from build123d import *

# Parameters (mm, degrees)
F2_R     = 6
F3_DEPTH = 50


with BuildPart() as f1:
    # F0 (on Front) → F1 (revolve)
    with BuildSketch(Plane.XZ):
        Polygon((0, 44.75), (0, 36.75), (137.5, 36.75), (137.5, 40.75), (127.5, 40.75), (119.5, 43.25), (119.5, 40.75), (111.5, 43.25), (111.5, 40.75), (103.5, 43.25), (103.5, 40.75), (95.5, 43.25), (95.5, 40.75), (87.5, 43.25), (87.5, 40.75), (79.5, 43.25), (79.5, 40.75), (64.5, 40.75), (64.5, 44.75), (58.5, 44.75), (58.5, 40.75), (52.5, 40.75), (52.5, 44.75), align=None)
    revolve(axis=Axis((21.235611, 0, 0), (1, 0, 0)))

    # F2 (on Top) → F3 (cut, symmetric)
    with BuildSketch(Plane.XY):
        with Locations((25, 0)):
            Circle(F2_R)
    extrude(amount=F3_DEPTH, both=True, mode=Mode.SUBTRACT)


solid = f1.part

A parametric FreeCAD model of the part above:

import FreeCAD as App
import Part
import Sketcher
from FreeCAD import Vector
Q = App.Units.Quantity


def add_polygon(sketch, points):
    """Adds a closed chain of lines whose ends are joined by coincident constraints."""
    first, n = sketch.GeometryCount, len(points)
    for a, b in zip(points, points[1:] + points[:1]):
        sketch.addGeometry(Part.LineSegment(App.Vector(*a, 0), App.Vector(*b, 0)), False)
    for i in range(n):
        sketch.addConstraint(Sketcher.Constraint("Coincident", first + i, 2, first + (i + 1) % n, 1))

doc = App.newDocument("Part")
body = doc.addObject("PartDesign::Body", "Body")

# Sketch on XZ plane
sketch1 = body.newObject("Sketcher::SketchObject", "Sketch")
sketch1.AttachmentSupport = (doc.getObject("XZ_Plane"), [""])
sketch1.MapMode = "FlatFace"
add_polygon(sketch1, [(0, 44.8), (0, 36.8), (137.5, 36.8), (137.5, 40.8), (127.5, 40.8), (119.5, 43.2), (119.5, 40.8), (111.5, 43.2), (111.5, 40.8), (103.5, 43.2), (103.5, 40.8), (95.5, 43.2), (95.5, 40.8), (87.5, 43.2), (87.5, 40.8), (79.5, 43.2), (79.5, 40.8), (64.5, 40.8), (64.5, 44.8), (58.5, 44.8), (58.5, 40.8), (52.5, 40.8), (52.5, 44.8)])  # lines 0-22
sketch1.addConstraint([
    Sketcher.Constraint("Vertical", 0),
    Sketcher.Constraint("Horizontal", 1),
    Sketcher.Constraint("Vertical", 2),
    Sketcher.Constraint("Horizontal", 3),
    Sketcher.Constraint("Vertical", 5),
    Sketcher.Constraint("Vertical", 7),
    Sketcher.Constraint("Vertical", 9),
    Sketcher.Constraint("Vertical", 11),
    Sketcher.Constraint("Vertical", 13),
    Sketcher.Constraint("Vertical", 15),
    Sketcher.Constraint("Horizontal", 16),
    Sketcher.Constraint("Vertical", 17),
    Sketcher.Constraint("Horizontal", 18),
    Sketcher.Constraint("Vertical", 19),
    Sketcher.Constraint("Horizontal", 20),
    Sketcher.Constraint("Vertical", 21),
    Sketcher.Constraint("Horizontal", 22),
    Sketcher.Constraint("PointOnObject", 0, 2, -2),
    Sketcher.Constraint("Parallel", 4, 6),
    Sketcher.Constraint("Parallel", 6, 8),
    Sketcher.Constraint("Parallel", 8, 10),
    Sketcher.Constraint("Parallel", 10, 12),
    Sketcher.Constraint("Parallel", 12, 14),
    Sketcher.Constraint("Horizontal", 3, 2, 5, 2),
    Sketcher.Constraint("Horizontal", 4, 2, 6, 2),
    Sketcher.Constraint("Horizontal", 5, 2, 7, 2),
    Sketcher.Constraint("Horizontal", 6, 2, 8, 2),
    Sketcher.Constraint("Horizontal", 7, 2, 9, 2),
    Sketcher.Constraint("Horizontal", 8, 2, 10, 2),
    Sketcher.Constraint("Horizontal", 9, 2, 11, 2),
    Sketcher.Constraint("Horizontal", 10, 2, 12, 2),
    Sketcher.Constraint("Horizontal", 11, 2, 13, 2),
    Sketcher.Constraint("Horizontal", 12, 2, 14, 2),
    Sketcher.Constraint("Horizontal", 13, 2, 15, 2),
    Sketcher.Constraint("Horizontal", 16, 2, 19, 2),
    Sketcher.Constraint("Horizontal", 18, 2, 21, 2),
    Sketcher.Constraint("Equal", 18, 20),
    Sketcher.Constraint("Equal", 2, 17),
    Sketcher.Constraint("DistanceX", 3, 2, 3, 1, Q("10 mm")),
    Sketcher.Constraint("DistanceX", 16, 2, 16, 1, Q("15 mm")),
    Sketcher.Constraint("DistanceX", 18, 2, 18, 1, Q("6 mm")),
    Sketcher.Constraint("DistanceY", 0, 2, 0, 1, Q("8 mm")),
    Sketcher.Constraint("DistanceX", 1, 1, 1, 2, Q("137.5 mm")),
    Sketcher.Constraint("DistanceX", 22, 2, 22, 1, Q("52.5 mm")),
    Sketcher.Constraint("DistanceY", 5, 2, 5, 1, Q("2.5 mm")),
    Sketcher.Constraint("DistanceY", -1, 1, 0, 2, Q("36.75 mm")),
])
revolution = body.newObject("PartDesign::Revolution", "Revolution")
revolution.Profile = sketch1
revolution.ReferenceAxis = (sketch1, ["H_Axis"])
revolution.Angle = 360

# Sketch on XY plane
sketch2 = body.newObject("Sketcher::SketchObject", "Sketch001")
sketch2.AttachmentSupport = (doc.getObject("XY_Plane"), [""])
sketch2.MapMode = "FlatFace"
sketch2.addGeometry(Part.Circle(Vector(25, 0, 0), Vector(0, 0, 1), 6), False)
sketch2.addConstraint([
    Sketcher.Constraint("PointOnObject", 0, 3, -1),
    Sketcher.Constraint("Diameter", 0, Q("12 mm")),
    Sketcher.Constraint("DistanceX", -1, 1, 0, 3, Q("25 mm")),
])
pocket1 = body.newObject("PartDesign::Pocket", "Pocket")
pocket1.Profile = sketch2
pocket1.Length = 100
pocket1.Midplane = True

doc.recompute()
